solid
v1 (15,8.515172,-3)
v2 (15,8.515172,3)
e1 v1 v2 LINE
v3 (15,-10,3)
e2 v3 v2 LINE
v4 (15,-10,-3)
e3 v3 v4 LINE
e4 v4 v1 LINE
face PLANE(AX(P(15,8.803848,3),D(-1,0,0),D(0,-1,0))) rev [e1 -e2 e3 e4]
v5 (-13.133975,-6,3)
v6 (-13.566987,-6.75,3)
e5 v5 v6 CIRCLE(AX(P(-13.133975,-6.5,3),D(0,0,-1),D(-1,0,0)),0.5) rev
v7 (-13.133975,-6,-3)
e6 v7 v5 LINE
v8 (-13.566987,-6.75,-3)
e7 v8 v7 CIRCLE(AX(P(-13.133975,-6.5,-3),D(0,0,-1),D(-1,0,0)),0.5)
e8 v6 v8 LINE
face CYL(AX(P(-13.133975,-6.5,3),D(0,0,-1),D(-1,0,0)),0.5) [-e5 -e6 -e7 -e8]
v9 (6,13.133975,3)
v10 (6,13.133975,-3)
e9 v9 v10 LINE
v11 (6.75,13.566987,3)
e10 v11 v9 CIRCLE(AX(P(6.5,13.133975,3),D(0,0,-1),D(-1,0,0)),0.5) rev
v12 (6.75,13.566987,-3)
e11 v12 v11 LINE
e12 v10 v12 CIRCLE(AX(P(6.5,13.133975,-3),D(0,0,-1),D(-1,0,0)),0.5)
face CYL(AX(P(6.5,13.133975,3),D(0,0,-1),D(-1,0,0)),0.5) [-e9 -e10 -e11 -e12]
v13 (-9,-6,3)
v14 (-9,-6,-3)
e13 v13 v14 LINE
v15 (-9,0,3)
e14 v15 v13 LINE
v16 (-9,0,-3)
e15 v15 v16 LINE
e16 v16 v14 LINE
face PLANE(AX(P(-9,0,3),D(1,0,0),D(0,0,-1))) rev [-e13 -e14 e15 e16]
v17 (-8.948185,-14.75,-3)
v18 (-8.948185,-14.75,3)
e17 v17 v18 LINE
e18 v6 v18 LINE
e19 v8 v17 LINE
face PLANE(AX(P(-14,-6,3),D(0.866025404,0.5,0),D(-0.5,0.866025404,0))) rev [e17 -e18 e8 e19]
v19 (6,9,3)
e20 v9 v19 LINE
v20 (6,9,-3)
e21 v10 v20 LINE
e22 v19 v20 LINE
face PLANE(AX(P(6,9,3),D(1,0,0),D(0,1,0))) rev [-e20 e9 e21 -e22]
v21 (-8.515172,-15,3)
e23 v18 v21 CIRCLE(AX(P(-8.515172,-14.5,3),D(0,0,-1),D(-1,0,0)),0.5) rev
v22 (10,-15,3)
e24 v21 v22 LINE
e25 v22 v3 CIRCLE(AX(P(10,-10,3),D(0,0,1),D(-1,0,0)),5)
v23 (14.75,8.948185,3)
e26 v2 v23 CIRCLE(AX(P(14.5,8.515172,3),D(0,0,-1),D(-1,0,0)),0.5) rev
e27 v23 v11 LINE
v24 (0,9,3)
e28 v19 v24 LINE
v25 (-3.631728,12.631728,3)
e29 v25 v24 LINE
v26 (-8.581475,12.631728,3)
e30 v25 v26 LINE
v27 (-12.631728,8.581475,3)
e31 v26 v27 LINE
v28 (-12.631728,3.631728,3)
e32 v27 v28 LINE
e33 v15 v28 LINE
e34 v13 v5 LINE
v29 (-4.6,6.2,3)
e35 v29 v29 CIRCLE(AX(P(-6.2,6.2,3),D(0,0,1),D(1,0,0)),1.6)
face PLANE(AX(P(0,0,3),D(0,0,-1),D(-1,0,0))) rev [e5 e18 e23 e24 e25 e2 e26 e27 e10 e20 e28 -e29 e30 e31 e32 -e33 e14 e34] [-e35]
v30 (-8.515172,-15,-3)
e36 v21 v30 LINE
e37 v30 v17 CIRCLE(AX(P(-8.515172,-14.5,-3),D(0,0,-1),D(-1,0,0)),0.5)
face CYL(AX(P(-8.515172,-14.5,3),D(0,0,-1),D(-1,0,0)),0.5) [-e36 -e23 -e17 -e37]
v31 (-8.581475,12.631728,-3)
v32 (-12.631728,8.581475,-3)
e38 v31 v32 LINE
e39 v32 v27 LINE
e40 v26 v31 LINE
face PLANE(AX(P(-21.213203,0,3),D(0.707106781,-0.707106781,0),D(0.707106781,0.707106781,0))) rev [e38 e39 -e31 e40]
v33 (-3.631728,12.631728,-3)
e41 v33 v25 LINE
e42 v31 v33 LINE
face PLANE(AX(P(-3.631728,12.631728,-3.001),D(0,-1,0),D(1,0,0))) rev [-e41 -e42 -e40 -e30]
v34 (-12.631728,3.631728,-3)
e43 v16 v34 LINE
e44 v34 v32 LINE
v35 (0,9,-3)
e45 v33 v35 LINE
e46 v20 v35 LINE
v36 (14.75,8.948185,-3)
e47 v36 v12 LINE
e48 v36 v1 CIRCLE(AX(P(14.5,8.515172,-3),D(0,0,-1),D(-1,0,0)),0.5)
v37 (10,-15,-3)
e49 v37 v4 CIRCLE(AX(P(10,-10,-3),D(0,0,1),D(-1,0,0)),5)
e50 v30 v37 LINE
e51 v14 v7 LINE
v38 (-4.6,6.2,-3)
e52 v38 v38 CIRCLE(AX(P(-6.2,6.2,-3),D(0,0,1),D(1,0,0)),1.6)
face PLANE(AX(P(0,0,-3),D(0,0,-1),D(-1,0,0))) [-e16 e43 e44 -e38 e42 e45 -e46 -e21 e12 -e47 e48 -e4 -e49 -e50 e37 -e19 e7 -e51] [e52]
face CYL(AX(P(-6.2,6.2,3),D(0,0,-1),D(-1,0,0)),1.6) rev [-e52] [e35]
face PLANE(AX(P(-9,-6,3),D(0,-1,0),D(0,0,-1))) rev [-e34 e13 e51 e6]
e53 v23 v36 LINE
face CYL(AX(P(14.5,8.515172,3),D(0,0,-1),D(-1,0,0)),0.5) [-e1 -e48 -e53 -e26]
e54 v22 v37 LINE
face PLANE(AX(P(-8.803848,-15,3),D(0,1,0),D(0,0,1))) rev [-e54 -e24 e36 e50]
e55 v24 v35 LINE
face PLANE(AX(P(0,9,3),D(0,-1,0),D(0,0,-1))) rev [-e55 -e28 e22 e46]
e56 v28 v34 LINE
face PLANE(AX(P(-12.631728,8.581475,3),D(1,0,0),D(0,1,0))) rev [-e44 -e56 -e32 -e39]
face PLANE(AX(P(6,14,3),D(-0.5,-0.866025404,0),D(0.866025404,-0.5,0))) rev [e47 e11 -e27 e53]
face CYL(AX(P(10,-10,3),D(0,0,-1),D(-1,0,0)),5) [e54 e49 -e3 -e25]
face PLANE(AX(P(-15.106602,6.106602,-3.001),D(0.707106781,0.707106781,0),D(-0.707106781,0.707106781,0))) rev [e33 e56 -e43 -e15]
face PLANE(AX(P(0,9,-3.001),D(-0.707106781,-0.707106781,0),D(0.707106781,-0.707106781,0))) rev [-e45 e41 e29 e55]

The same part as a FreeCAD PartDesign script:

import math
import FreeCAD as App
import Part
import Sketcher
Q = App.Units.Quantity


def edges_at(feature, points):
    """Names of the edges that pass closest to the given points."""
    edges = feature.Shape.Edges
    near = lambda p: min(range(len(edges)), key=lambda i: edges[i].distToShape(Part.Vertex(*p))[0])
    return sorted({f"Edge{near(p) + 1}" for p in points})


def add_polygon(sketch, points):
    """Adds a closed chain of lines whose ends are joined by coincident constraints."""
    first, n = sketch.GeometryCount, len(points)
    for a, b in zip(points, points[1:] + points[:1]):
        sketch.addGeometry(Part.LineSegment(App.Vector(*a, 0), App.Vector(*b, 0)), False)
    for i in range(n):
        sketch.addConstraint(Sketcher.Constraint("Coincident", first + i, 2, first + (i + 1) % n, 1))

doc = App.newDocument("Part")
body = doc.addObject("PartDesign::Body", "Body")

sketch1 = doc.addObject("Sketcher::SketchObject", "Sketch")
body.addObject(sketch1)
sketch1.AttachmentSupport = (doc.XY_Plane, [""])
sketch1.MapMode = "FlatFace"
add_polygon(sketch1, [(-21.2, 0), (0, 0), (0, 21.2)])
sketch1.addGeometry(Part.Circle(App.Vector(-6.2, 6.2, 0), App.Vector(0, 0, 1), 1.6), False)
sketch1.addConstraint(Sketcher.Constraint("Horizontal", 0))
sketch1.addConstraint(Sketcher.Constraint("Vertical", 1))
sketch1.addConstraint(Sketcher.Constraint("Coincident", 0, 2, -1, 1))
sketch1.addConstraint(Sketcher.Constraint("Equal", 0, 1))
sketch1.addConstraint(Sketcher.Constraint("Diameter", 3, 3.2))
sketch1.addConstraint(Sketcher.Constraint("Distance", 2, 30.0))
sketch1.addConstraint(Sketcher.Constraint("DistanceX", 3, 3, -1, 1, 6.2))
sketch1.addConstraint(Sketcher.Constraint("DistanceY", -1, 1, 3, 3, 6.2))
pad1 = doc.addObject("PartDesign::Pad", "Pad")
body.addObject(pad1)
pad1.Profile = sketch1
pad1.Length = 6
pad1.Midplane = True

sketch2 = doc.addObject("Sketcher::SketchObject", "Sketch001")
body.addObject(sketch2)
sketch2.AttachmentSupport = (doc.XY_Plane, [""])
sketch2.MapMode = "FlatFace"
sketch2.addGeometry(Part.LineSegment(App.Vector(-9, 0, 0), App.Vector(-9, -6, 0)), False)
sketch2.addGeometry(Part.LineSegment(App.Vector(-9, -6, 0), App.Vector(-14, -6, 0)), False)
sketch2.addGeometry(Part.LineSegment(App.Vector(-14, -6, 0), App.Vector(-9, -15, 0)), False)
sketch2.addGeometry(Part.LineSegment(App.Vector(-9, -15, 0), App.Vector(10, -15, 0)), False)
sketch2.addGeometry(Part.ArcOfCircle(Part.Circle(App.Vector(10, -10, 0), App.Vector(0, 0, 1), 5), math.radians(-90), math.radians(0)), False)
sketch2.addGeometry(Part.LineSegment(App.Vector(15, -10, 0), App.Vector(15, 9, 0)), False)
sketch2.addGeometry(Part.LineSegment(App.Vector(15, 9, 0), App.Vector(6, 14, 0)), False)
sketch2.addGeometry(Part.LineSegment(App.Vector(6, 14, 0), App.Vector(6, 9, 0)), False)
sketch2.addGeometry(Part.LineSegment(App.Vector(6, 9, 0), App.Vector(0, 9, 0)), False)
sketch2.addGeometry(Part.LineSegment(App.Vector(0, 9, 0), App.Vector(0, 0, 0)), False)
sketch2.addGeometry(Part.LineSegment(App.Vector(0, 0, 0), App.Vector(-9, 0, 0)), False)
sketch2.addConstraint(Sketcher.Constraint("Coincident", 0, 2, 1, 1))
sketch2.addConstraint(Sketcher.Constraint("Coincident", 1, 2, 2, 1))
sketch2.addConstraint(Sketcher.Constraint("Coincident", 2, 2, 3, 1))
sketch2.addConstraint(Sketcher.Constraint("Tangent", 3, 2, 4, 1))
sketch2.addConstraint(Sketcher.Constraint("Tangent", 4, 2, 5, 1))
sketch2.addConstraint(Sketcher.Constraint("Coincident", 5, 2, 6, 1))
sketch2.addConstraint(Sketcher.Constraint("Coincident", 6, 2, 7, 1))
sketch2.addConstraint(Sketcher.Constraint("Coincident", 7, 2, 8, 1))
sketch2.addConstraint(Sketcher.Constraint("Coincident", 8, 2, 9, 1))
sketch2.addConstraint(Sketcher.Constraint("Coincident", 9, 2, 10, 1))
sketch2.addConstraint(Sketcher.Constraint("Coincident", 10, 2, 0, 1))
sketch2.addConstraint(Sketcher.Constraint("Vertical", 0))
sketch2.addConstraint(Sketcher.Constraint("Horizontal", 1))
sketch2.addConstraint(Sketcher.Constraint("Horizontal", 3))
sketch2.addConstraint(Sketcher.Constraint("Vertical", 5))
sketch2.addConstraint(Sketcher.Constraint("Vertical", 7))
sketch2.addConstraint(Sketcher.Constraint("Horizontal", 8))
sketch2.addConstraint(Sketcher.Constraint("Vertical", 9))
sketch2.addConstraint(Sketcher.Constraint("Horizontal", 10))
sketch2.addConstraint(Sketcher.Constraint("Coincident", 9, 2, -1, 1))
sketch2.addConstraint(Sketcher.Constraint("Equal", 8, 0))
sketch2.addConstraint(Sketcher.Constraint("Equal", 3, 5))
sketch2.addConstraint(Sketcher.Constraint("Equal", 1, 7))
sketch2.addConstraint(Sketcher.Constraint("Equal", 10, 9))
sketch2.addConstraint(Sketcher.Constraint("Equal", 2, 6))
sketch2.addConstraint(Sketcher.Constraint("Radius", 4, 5.0))
sketch2.addConstraint(Sketcher.Constraint("DistanceX", 1, 2, 1, 1, 5.0))
sketch2.addConstraint(Sketcher.Constraint("DistanceX", 8, 2, 8, 1, 6.0))
sketch2.addConstraint(Sketcher.Constraint("DistanceX", 10, 2, 10, 1, 9.0))
sketch2.addConstraint(Sketcher.Constraint("Angle", 2, Q("-60 deg")))
sketch2.addConstraint(Sketcher.Constraint("DistanceX", -1, 1, 4, 3, 10.0))
pad2 = doc.addObject("PartDesign::Pad", "Pad001")
body.addObject(pad2)
pad2.Profile = sketch2
pad2.Length = 6
pad2.Midplane = True
doc.recompute()

fillet = doc.addObject("PartDesign::Fillet", "Fillet")
body.addObject(fillet)
fillet.Base = (pad2, edges_at(pad2, [
    (-14, -6, 0),
    (-8.804, -15, 0),
    (15, 8.804, 0),
    (6, 14, 0),
]))
fillet.Radius = 0.5

sketch3 = doc.addObject("Sketcher::SketchObject", "Sketch002")
body.addObject(sketch3)
sketch3.AttachmentSupport = (doc.XY_Plane, [""])
sketch3.MapMode = "FlatFace"
sketch3.AttachmentOffset = App.Placement(App.Vector(0, 0, 3), App.Rotation())
add_polygon(sketch3, [(-6, 15), (0, 9), (0, 21)])
sketch3.addConstraint(Sketcher.Constraint("Vertical", 1))
sketch3.addConstraint(Sketcher.Constraint("PointOnObject", 0, 2, -2))
sketch3.addConstraint(Sketcher.Constraint("Perpendicular", 0, 2))
sketch3.addConstraint(Sketcher.Constraint("Equal", 0, 2))
sketch3.addConstraint(Sketcher.Constraint("DistanceY", -1, 1, 0, 2, 9.0))
sketch3.addConstraint(Sketcher.Constraint("DistanceX", 2, 2, -1, 1, 6.106602))
pocket1 = doc.addObject("PartDesign::Pocket", "Pocket")
body.addObject(pocket1)
pocket1.Profile = sketch3
pocket1.Type = "UpToFirst"

sketch4 = doc.addObject("Sketcher::SketchObject", "Sketch003")
body.addObject(sketch4)
sketch4.AttachmentSupport = (doc.XY_Plane, [""])
sketch4.MapMode = "FlatFace"
sketch4.AttachmentOffset = App.Placement(App.Vector(0, 0, 3), App.Rotation())
add_polygon(sketch4, [(-15, 6), (-21, 0), (-9, 0)])
sketch4.addConstraint(Sketcher.Constraint("Horizontal", 1))
sketch4.addConstraint(Sketcher.Constraint("PointOnObject", 0, 2, -1))
sketch4.addConstraint(Sketcher.Constraint("Perpendicular", 0, 2))
sketch4.addConstraint(Sketcher.Constraint("Equal", 0, 2))
sketch4.addConstraint(Sketcher.Constraint("DistanceX", 1, 2, -1, 1, 9.0))
sketch4.addConstraint(Sketcher.Constraint("DistanceX", 2, 2, -1, 1, 15.106602))
pocket2 = doc.addObject("PartDesign::Pocket", "Pocket001")
body.addObject(pocket2)
pocket2.Profile = sketch4
pocket2.Type = "UpToFirst"
doc.recompute()

chamfer = doc.addObject("PartDesign::Chamfer", "Chamfer")
body.addObject(chamfer)
chamfer.Base = (pocket2, edges_at(pocket2, [(-6.107, 15.107, 0), (-15.107, 6.107, 0)]))
chamfer.Size = 3.5

doc.recompute()
